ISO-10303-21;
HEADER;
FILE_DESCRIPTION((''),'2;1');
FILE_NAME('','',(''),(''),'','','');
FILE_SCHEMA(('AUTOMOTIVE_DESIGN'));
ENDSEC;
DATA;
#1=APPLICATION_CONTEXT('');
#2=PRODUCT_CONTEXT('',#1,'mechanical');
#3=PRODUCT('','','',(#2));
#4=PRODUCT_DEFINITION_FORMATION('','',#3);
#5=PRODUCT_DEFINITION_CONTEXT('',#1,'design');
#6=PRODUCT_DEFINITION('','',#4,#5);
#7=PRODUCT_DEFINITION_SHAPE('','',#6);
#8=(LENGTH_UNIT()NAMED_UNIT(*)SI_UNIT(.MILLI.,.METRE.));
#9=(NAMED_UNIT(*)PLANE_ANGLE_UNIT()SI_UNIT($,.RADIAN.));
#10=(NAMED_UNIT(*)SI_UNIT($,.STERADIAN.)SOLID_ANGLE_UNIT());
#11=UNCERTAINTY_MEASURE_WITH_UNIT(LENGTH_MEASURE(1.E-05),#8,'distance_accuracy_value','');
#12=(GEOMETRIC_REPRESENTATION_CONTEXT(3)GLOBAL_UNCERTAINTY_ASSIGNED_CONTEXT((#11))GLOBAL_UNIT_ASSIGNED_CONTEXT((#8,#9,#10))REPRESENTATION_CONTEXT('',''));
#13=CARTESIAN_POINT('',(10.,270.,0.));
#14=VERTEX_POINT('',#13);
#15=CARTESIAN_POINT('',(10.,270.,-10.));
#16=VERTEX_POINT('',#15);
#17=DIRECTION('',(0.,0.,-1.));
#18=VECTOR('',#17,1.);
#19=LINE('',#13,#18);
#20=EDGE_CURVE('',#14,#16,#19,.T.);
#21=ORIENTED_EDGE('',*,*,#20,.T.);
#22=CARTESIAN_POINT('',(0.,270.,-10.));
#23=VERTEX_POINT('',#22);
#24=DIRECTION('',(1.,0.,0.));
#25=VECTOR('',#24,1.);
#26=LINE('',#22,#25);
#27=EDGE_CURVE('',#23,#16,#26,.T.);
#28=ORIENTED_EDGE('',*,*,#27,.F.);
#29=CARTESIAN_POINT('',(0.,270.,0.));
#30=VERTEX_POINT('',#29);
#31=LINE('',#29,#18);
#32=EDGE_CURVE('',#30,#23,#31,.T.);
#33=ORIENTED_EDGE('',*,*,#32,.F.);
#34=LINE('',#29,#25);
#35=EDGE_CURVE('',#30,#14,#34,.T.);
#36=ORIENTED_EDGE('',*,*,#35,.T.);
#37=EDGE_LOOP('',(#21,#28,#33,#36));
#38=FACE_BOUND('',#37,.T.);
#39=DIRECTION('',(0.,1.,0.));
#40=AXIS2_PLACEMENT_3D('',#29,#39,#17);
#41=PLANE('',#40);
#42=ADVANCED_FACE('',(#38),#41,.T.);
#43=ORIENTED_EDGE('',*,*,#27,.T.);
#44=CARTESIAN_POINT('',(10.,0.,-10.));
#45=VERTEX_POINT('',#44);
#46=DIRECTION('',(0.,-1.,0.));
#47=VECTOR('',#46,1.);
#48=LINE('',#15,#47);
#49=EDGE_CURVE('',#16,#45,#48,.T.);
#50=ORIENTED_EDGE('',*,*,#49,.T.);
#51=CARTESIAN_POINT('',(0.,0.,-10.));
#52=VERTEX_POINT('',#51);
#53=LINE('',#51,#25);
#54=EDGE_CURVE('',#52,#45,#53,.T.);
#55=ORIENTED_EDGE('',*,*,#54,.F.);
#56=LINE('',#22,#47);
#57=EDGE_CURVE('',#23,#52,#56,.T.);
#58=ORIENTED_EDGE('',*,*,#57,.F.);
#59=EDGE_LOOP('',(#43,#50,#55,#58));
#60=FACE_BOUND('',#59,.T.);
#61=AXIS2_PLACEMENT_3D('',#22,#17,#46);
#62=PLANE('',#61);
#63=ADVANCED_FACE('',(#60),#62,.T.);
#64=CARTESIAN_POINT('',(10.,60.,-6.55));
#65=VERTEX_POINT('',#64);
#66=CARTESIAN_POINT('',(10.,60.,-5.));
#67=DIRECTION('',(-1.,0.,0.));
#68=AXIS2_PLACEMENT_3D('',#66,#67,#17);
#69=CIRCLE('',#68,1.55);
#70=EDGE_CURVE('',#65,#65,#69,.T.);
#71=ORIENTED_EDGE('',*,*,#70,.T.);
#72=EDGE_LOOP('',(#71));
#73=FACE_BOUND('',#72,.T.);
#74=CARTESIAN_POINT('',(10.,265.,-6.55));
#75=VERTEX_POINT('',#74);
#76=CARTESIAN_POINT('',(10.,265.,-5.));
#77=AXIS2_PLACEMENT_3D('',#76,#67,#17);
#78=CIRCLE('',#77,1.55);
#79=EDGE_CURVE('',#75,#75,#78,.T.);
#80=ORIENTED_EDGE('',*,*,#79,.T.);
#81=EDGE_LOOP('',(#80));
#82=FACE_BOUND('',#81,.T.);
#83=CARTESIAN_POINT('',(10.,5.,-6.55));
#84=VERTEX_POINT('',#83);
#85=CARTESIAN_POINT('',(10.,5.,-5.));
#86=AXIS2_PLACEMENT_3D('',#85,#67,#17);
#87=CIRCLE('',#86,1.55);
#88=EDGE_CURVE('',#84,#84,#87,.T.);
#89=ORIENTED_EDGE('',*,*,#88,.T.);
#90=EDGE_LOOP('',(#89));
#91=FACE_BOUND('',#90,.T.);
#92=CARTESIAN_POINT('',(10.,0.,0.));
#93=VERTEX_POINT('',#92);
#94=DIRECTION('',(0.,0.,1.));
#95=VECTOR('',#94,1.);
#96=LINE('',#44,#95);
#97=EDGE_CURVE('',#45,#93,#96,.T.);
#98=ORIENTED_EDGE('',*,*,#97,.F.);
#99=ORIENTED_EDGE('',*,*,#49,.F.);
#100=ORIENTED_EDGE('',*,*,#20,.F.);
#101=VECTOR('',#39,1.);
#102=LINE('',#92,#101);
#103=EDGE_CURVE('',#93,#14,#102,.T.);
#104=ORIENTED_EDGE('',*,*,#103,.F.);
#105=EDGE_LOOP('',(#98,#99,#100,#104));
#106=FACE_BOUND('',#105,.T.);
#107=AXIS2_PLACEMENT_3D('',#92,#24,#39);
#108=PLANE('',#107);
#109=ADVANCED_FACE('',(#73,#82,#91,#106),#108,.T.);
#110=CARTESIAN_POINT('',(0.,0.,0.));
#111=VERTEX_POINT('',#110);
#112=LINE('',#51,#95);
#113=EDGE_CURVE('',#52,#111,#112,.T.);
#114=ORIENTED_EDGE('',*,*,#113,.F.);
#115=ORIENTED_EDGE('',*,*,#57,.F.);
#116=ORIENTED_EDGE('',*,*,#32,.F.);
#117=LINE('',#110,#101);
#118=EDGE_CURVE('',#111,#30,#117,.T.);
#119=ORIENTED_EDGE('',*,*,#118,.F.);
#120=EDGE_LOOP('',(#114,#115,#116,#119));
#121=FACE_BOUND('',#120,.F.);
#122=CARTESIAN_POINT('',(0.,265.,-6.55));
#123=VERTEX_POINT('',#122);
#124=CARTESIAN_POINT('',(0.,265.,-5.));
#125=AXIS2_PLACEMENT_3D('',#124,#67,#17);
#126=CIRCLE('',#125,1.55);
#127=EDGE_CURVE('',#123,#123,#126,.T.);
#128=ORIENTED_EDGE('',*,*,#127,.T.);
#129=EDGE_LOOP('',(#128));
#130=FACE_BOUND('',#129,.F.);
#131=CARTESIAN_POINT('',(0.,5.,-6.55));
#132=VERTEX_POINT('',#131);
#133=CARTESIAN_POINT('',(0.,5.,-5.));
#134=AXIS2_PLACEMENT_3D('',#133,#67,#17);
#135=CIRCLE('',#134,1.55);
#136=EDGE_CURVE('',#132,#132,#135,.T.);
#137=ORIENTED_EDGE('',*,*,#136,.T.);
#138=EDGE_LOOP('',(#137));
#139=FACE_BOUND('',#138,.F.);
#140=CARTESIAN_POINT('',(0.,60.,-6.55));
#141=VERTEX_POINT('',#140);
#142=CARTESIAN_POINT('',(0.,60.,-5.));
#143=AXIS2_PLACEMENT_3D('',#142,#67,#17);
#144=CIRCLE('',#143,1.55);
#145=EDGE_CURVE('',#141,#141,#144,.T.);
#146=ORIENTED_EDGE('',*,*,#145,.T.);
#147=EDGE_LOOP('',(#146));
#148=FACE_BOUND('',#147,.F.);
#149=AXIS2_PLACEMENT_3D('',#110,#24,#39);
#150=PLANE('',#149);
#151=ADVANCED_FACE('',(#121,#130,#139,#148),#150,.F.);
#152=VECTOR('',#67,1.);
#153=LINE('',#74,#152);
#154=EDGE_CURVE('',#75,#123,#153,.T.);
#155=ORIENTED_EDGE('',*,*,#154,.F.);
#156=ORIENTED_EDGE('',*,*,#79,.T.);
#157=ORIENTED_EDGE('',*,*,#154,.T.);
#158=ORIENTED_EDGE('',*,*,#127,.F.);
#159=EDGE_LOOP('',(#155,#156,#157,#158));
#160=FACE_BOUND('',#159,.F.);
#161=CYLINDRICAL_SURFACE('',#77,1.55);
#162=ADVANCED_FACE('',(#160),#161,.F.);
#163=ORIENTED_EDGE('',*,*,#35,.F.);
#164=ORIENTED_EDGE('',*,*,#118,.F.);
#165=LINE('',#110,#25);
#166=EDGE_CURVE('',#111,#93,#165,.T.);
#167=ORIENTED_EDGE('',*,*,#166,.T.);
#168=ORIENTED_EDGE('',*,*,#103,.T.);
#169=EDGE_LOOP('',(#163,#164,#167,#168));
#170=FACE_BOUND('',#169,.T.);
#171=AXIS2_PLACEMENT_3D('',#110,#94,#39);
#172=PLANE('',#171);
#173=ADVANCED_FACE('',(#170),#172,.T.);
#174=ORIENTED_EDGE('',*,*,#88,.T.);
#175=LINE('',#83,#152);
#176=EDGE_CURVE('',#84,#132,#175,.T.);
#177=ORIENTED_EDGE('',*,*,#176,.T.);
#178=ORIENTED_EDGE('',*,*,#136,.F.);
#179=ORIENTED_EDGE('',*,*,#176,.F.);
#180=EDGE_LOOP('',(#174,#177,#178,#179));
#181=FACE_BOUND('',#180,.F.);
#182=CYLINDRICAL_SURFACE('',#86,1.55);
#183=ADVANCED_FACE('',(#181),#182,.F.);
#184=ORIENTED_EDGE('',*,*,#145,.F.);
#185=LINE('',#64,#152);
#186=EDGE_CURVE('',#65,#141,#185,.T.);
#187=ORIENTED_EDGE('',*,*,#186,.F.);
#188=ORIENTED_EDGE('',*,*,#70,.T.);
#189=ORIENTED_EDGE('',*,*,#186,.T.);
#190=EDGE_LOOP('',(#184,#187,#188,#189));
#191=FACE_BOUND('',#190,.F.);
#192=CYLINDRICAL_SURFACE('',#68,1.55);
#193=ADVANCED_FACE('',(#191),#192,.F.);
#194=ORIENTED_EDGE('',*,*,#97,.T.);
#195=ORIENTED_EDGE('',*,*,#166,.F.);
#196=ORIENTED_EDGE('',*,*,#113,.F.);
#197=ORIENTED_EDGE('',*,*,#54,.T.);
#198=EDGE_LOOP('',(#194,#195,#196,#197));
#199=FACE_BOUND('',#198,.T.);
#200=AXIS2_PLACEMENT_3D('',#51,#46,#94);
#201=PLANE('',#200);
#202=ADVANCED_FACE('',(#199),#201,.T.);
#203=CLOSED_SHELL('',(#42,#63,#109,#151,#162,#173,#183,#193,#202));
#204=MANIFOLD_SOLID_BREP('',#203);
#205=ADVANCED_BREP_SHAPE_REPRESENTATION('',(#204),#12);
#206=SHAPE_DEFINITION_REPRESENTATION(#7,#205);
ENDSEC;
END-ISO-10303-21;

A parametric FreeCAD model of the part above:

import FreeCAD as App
import Part
import Sketcher
Q = App.Units.Quantity

doc = App.newDocument("Part")
params = doc.addObject("Spreadsheet::Sheet", "Params")
for row, (alias, value) in enumerate([
    ("sketch1_width", "270 mm"),
    ("sketch1_height", "10 mm"),
    ("pad1_length", "10 mm"),
    ("sketch2_diameter", "3.1 mm"),
    ("hole_diameter", "3.1 mm"),
], start=1):
    params.set(f"A{row}", alias)
    params.set(f"B{row}", "=" + value)
    params.setAlias(f"B{row}", alias)

body = doc.addObject("PartDesign::Body", "Body")

# Sketch on YZ plane
sketch1 = body.newObject("Sketcher::SketchObject", "Sketch")
sketch1.AttachmentSupport = (doc.getObject("YZ_Plane"), [""])
sketch1.MapMode = "FlatFace"
sketch1.addGeometry([
    Part.LineSegment(App.Vector(270, 0, 0), App.Vector(0, 0, 0)),
    Part.LineSegment(App.Vector(0, 0, 0), App.Vector(0, -10, 0)),
    Part.LineSegment(App.Vector(0, -10, 0), App.Vector(270, -10, 0)),
    Part.LineSegment(App.Vector(270, -10, 0), App.Vector(270, 0, 0)),
], False)
sketch1.addConstraint([
    Sketcher.Constraint("Coincident", 0, 2, 1, 1),
    Sketcher.Constraint("Coincident", 1, 2, 2, 1),
    Sketcher.Constraint("Coincident", 2, 2, 3, 1),
    Sketcher.Constraint("Coincident", 3, 2, 0, 1),
    Sketcher.Constraint("Horizontal", 0),
    Sketcher.Constraint("Vertical", 1),
    Sketcher.Constraint("Horizontal", 2),
    Sketcher.Constraint("Vertical", 3),
    Sketcher.Constraint("Coincident", 0, 2, -1, 1),
    Sketcher.Constraint("DistanceX", 0, 2, 0, 1, Q("270 mm")),
    Sketcher.Constraint("DistanceY", 1, 2, 1, 1, Q("10 mm")),
])
sketch1.setExpression("Constraints[9]", "Params.sketch1_width")
sketch1.setExpression("Constraints[10]", "Params.sketch1_height")
pad1 = body.newObject("PartDesign::Pad", "Pad")
pad1.Profile = sketch1
pad1.setExpression("Length", "Params.pad1_length")

# Sketch on YZ plane
sketch2 = body.newObject("Sketcher::SketchObject", "Sketch001")
sketch2.AttachmentSupport = (doc.getObject("YZ_Plane"), [""])
sketch2.MapMode = "FlatFace"
sketch2.AttachmentOffset = App.Placement(App.Vector(0, 0, 10), App.Rotation())
sketch2.addGeometry([
    Part.Circle(App.Vector(5, -5, 0), App.Vector(0, 0, 1), 1.6),
    Part.Circle(App.Vector(60, -5, 0), App.Vector(0, 0, 1), 1.6),
    Part.Circle(App.Vector(265, -5, 0), App.Vector(0, 0, 1), 1.6),
], False)
sketch2.addConstraint([
    Sketcher.Constraint("Equal", 0, 1),
    Sketcher.Constraint("Equal", 1, 2),
    Sketcher.Constraint("Horizontal", 0, 3, 1, 3),
    Sketcher.Constraint("Horizontal", 1, 3, 2, 3),
    Sketcher.Constraint("Diameter", 0, Q("3.1 mm")),
    Sketcher.Constraint("DistanceX", -1, 1, 0, 3, Q("5 mm")),
    Sketcher.Constraint("DistanceY", 0, 3, -1, 1, Q("5 mm")),
    Sketcher.Constraint("DistanceX", -1, 1, 1, 3, Q("60 mm")),
    Sketcher.Constraint("DistanceX", -1, 1, 2, 3, Q("265 mm")),
])
sketch2.setExpression("Constraints[4]", "Params.sketch2_diameter")
doc.recompute()
hole = body.newObject("PartDesign::Hole", "Hole")
hole.Profile = sketch2
hole.ThreadType = "None"
hole.setExpression("Diameter", "Params.hole_diameter")
hole.DepthType = "ThroughAll"

doc.recompute()
